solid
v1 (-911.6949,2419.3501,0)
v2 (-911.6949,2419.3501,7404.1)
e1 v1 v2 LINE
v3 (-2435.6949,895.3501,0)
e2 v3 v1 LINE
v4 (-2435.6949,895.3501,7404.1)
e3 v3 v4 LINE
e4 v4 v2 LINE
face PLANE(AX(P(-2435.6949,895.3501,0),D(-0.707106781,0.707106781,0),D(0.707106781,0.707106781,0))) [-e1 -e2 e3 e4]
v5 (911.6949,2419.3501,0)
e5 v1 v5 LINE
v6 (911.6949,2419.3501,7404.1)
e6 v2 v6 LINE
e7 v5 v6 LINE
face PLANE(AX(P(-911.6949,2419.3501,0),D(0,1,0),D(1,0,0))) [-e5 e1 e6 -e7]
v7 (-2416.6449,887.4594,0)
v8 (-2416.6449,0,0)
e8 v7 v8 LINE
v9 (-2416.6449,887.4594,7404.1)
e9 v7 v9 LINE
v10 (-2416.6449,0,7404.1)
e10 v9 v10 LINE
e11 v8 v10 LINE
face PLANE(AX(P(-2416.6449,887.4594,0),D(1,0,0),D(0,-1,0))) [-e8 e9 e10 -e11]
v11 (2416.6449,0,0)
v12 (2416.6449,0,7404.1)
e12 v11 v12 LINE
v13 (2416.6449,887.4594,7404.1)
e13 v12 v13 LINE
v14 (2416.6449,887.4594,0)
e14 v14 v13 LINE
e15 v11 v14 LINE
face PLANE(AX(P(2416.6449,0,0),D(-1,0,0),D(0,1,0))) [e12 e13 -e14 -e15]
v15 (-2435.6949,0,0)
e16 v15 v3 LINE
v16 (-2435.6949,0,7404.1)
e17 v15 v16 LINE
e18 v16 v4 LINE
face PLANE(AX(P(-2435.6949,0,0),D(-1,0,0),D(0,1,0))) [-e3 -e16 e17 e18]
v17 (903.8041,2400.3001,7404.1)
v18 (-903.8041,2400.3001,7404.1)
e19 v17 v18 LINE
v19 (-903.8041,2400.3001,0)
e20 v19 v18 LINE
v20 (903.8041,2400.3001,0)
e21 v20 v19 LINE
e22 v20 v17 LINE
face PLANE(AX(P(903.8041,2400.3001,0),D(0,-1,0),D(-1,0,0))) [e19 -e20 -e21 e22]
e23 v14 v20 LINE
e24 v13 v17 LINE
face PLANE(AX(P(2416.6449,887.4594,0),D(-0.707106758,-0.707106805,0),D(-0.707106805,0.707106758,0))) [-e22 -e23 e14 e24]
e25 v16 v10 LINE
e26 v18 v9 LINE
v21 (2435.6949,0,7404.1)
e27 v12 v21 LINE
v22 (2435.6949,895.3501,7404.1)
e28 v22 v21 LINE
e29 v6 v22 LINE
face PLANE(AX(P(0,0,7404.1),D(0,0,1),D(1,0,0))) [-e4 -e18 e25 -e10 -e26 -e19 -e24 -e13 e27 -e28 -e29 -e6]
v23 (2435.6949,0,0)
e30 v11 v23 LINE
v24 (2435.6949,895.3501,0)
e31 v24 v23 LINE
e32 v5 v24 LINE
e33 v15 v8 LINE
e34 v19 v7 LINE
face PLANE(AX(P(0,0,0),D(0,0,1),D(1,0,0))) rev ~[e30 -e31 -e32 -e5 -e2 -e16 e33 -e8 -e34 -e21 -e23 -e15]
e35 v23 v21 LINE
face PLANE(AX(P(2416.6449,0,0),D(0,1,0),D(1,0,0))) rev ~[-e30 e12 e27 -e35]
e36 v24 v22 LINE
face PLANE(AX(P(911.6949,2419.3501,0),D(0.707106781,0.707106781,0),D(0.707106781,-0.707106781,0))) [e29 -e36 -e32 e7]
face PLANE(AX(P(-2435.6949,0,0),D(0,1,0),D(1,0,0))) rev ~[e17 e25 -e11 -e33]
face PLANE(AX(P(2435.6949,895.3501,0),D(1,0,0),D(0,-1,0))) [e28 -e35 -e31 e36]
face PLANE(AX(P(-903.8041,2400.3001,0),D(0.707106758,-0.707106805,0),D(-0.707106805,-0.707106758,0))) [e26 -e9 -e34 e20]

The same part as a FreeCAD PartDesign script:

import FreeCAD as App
import Part
import Sketcher
Q = App.Units.Quantity

doc = App.newDocument("Part")
body = doc.addObject("PartDesign::Body", "Body")

sketch1 = body.newObject("Sketcher::SketchObject", "Sketch")
sketch1.AttachmentSupport = (doc.getObject("XY_Plane"), [""])
sketch1.MapMode = "FlatFace"
sketch1.addGeometry([
    Part.LineSegment(App.Vector(-2435.6949, 895.3501, 0), App.Vector(-2435.6949, 0, 0)),
    Part.LineSegment(App.Vector(-2435.6949, 0, 0), App.Vector(-2416.6449, 0, 0)),
    Part.LineSegment(App.Vector(-2416.6449, 0, 0), App.Vector(-2416.6449, 887.4594, 0)),
    Part.LineSegment(App.Vector(-2416.6449, 887.4594, 0), App.Vector(-903.8041, 2400.3001, 0)),
    Part.LineSegment(App.Vector(-903.8041, 2400.3001, 0), App.Vector(903.8041, 2400.3001, 0)),
    Part.LineSegment(App.Vector(903.8041, 2400.3001, 0), App.Vector(2416.6449, 887.4594, 0)),
    Part.LineSegment(App.Vector(2416.6449, 887.4594, 0), App.Vector(2416.6449, 0, 0)),
    Part.LineSegment(App.Vector(2416.6449, 0, 0), App.Vector(2435.6949, 0, 0)),
    Part.LineSegment(App.Vector(2435.6949, 0, 0), App.Vector(2435.6949, 895.3501, 0)),
    Part.LineSegment(App.Vector(2435.6949, 895.3501, 0), App.Vector(911.6949, 2419.3501, 0)),
    Part.LineSegment(App.Vector(911.6949, 2419.3501, 0), App.Vector(-911.6949, 2419.3501, 0)),
    Part.LineSegment(App.Vector(-911.6949, 2419.3501, 0), App.Vector(-2435.6949, 895.3501, 0)),
], False)
sketch1.addConstraint([
    Sketcher.Constraint("Coincident", 0, 2, 1, 1),
    Sketcher.Constraint("Coincident", 1, 2, 2, 1),
    Sketcher.Constraint("Coincident", 2, 2, 3, 1),
    Sketcher.Constraint("Coincident", 3, 2, 4, 1),
    Sketcher.Constraint("Coincident", 4, 2, 5, 1),
    Sketcher.Constraint("Coincident", 5, 2, 6, 1),
    Sketcher.Constraint("Coincident", 6, 2, 7, 1),
    Sketcher.Constraint("Coincident", 7, 2, 8, 1),
    Sketcher.Constraint("Coincident", 8, 2, 9, 1),
    Sketcher.Constraint("Coincident", 9, 2, 10, 1),
    Sketcher.Constraint("Coincident", 10, 2, 11, 1),
    Sketcher.Constraint("Coincident", 11, 2, 0, 1),
    Sketcher.Constraint("Vertical", 0),
    Sketcher.Constraint("Horizontal", 1),
    Sketcher.Constraint("Vertical", 2),
    Sketcher.Constraint("Horizontal", 4),
    Sketcher.Constraint("Vertical", 6),
    Sketcher.Constraint("Horizontal", 7),
    Sketcher.Constraint("Vertical", 8),
    Sketcher.Constraint("Horizontal", 10),
    Sketcher.Constraint("Symmetric", 1, 2, 6, 2, -1, 1),
    Sketcher.Constraint("Symmetric", 0, 2, 7, 2, -2),
    Sketcher.Constraint("Perpendicular", 3, 5),
    Sketcher.Constraint("Parallel", 5, 9),
    Sketcher.Constraint("Perpendicular", 9, 11),
    Sketcher.Constraint("Horizontal", 2, 2, 5, 2),
    Sketcher.Constraint("Horizontal", 8, 2, 11, 2),
    Sketcher.Constraint("Equal", 3, 5),
    Sketcher.Constraint("DistanceX", 1, 1, 1, 2, Q("0.75 in")),
    Sketcher.Constraint("DistanceY", 0, 2, 0, 1, Q("35.25 in")),
    Sketcher.Constraint("DistanceX", 10, 2, 10, 1, Q("71.787 in")),
    Sketcher.Constraint("DistanceY", 4, 2, 9, 2, Q("0.75 in")),
    Sketcher.Constraint("DistanceX", 9, 2, 8, 2, Q("60 in")),
    Sketcher.Constraint("Distance", 3, Q("84.2315 in")),
])
pad1 = body.newObject("PartDesign::Pad", "Pad")
pad1.Profile = sketch1
pad1.Length = Q("291.5 in")

doc.recompute()
